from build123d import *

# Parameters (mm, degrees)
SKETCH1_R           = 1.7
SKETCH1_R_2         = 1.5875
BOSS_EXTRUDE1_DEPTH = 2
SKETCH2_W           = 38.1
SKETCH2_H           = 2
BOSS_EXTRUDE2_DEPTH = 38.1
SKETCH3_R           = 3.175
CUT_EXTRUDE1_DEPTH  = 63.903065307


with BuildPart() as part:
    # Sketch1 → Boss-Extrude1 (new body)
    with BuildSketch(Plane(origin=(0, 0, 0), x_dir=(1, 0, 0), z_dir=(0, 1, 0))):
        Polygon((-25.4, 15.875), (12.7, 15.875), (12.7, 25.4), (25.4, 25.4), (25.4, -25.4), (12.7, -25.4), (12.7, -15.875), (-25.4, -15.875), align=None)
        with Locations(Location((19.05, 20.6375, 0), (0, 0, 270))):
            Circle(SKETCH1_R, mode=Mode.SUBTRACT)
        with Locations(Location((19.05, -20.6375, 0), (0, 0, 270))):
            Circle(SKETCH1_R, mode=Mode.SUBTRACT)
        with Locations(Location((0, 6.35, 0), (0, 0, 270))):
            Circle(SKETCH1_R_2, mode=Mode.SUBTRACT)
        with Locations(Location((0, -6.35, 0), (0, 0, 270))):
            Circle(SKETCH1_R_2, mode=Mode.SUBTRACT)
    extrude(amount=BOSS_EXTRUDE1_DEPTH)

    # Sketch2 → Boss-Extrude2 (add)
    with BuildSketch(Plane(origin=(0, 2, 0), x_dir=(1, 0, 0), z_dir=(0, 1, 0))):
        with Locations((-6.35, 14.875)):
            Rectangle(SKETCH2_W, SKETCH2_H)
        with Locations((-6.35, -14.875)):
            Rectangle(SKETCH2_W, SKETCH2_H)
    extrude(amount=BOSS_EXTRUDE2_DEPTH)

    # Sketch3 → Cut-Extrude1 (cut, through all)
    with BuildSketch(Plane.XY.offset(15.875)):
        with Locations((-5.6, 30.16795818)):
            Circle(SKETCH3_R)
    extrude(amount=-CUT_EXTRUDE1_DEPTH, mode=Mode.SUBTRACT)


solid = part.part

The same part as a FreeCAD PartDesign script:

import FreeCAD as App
import Part
import Sketcher
Q = App.Units.Quantity


def add_polygon(sketch, points):
    """Adds a closed chain of lines whose ends are joined by coincident constraints."""
    first, n = sketch.GeometryCount, len(points)
    for a, b in zip(points, points[1:] + points[:1]):
        sketch.addGeometry(Part.LineSegment(App.Vector(*a, 0), App.Vector(*b, 0)), False)
    for i in range(n):
        sketch.addConstraint(Sketcher.Constraint("Coincident", first + i, 2, first + (i + 1) % n, 1))

doc = App.newDocument("Part")
params = doc.addObject("Spreadsheet::Sheet", "Params")
for row, (alias, value) in enumerate([
    ("sketch1_height", "2 in"),
    ("sketch1_diameter", "0.125 in"),
    ("sketch1_width", "1.5 in"),
    ("sketch1_width2", "0.5 in"),
    ("sketch1_height2", "1.25 in"),
    ("pad1_length", "2 mm"),
    ("sketch2_width", "1.5 in"),
    ("pad2_length", "1.5 in"),
    ("sketch3_diameter", "0.25 in"),
], start=1):
    params.set(f"A{row}", alias)
    params.set(f"B{row}", "=" + value)
    params.setAlias(f"B{row}", alias)

body = doc.addObject("PartDesign::Body", "Body")

# Sketch on XZ plane
sketch1 = body.newObject("Sketcher::SketchObject", "Sketch")
sketch1.AttachmentSupport = (doc.getObject("XZ_Plane"), [""])
sketch1.MapMode = "FlatFace"
add_polygon(sketch1, [(12.7, -15.9), (-25.4, -15.9), (-25.4, 15.9), (12.7, 15.9), (12.7, 25.4), (25.4, 25.4), (25.4, -25.4), (12.7, -25.4)])  # lines 0-7
sketch1.addGeometry(Part.Circle(App.Vector(19.1, 20.6, 0), App.Vector(0, 0, 1), 1.7), False)  # 8
sketch1.addGeometry(Part.Circle(App.Vector(0, 6.3, 0), App.Vector(0, 0, 1), 1.6), False)  # 9
sketch1.addGeometry(Part.Circle(App.Vector(19.1, -20.6, 0), App.Vector(0, 0, 1), 1.7), False)  # 10
sketch1.addGeometry(Part.Circle(App.Vector(0, -6.3, 0), App.Vector(0, 0, 1), 1.6), False)  # 11
sketch1.addConstraint(Sketcher.Constraint("Horizontal", 0))
sketch1.addConstraint(Sketcher.Constraint("Vertical", 1))
sketch1.addConstraint(Sketcher.Constraint("Horizontal", 2))
sketch1.addConstraint(Sketcher.Constraint("Vertical", 3))
sketch1.addConstraint(Sketcher.Constraint("Horizontal", 4))
sketch1.addConstraint(Sketcher.Constraint("Vertical", 5))
sketch1.addConstraint(Sketcher.Constraint("Horizontal", 6))
sketch1.addConstraint(Sketcher.Constraint("Vertical", 7))
sketch1.addConstraint(Sketcher.Constraint("Equal", 8, 10))
sketch1.addConstraint(Sketcher.Constraint("Equal", 9, 11))
sketch1.addConstraint(Sketcher.Constraint("Symmetric", 9, 3, 11, 3, -1, 1))
sketch1.addConstraint(Sketcher.Constraint("Symmetric", 8, 3, 10, 3, -1))
sketch1.addConstraint(Sketcher.Constraint("Symmetric", 3, 2, 6, 2, -1))
sketch1.addConstraint(Sketcher.Constraint("PointOnObject", 9, 3, -2))
sketch1.addConstraint(Sketcher.Constraint("Equal", 3, 7))
sketch1.addConstraint(Sketcher.Constraint("DistanceY", 5, 2, 5, 1, Q("2 in")))
sketch1.addConstraint(Sketcher.Constraint("Diameter", 9, Q("0.125 in")))
sketch1.addConstraint(Sketcher.Constraint("DistanceX", 0, 2, 0, 1, Q("1.5 in")))
sketch1.addConstraint(Sketcher.Constraint("DistanceX", 4, 1, 4, 2, Q("0.5 in")))
sketch1.addConstraint(Sketcher.Constraint("DistanceX", 0, 2, -1, 1, Q("1 in")))
sketch1.addConstraint(Sketcher.Constraint("DistanceY", 1, 1, 1, 2, Q("1.25 in")))
sketch1.addConstraint(Sketcher.Constraint("DistanceY", 11, 3, 9, 3, Q("0.5 in")))
sketch1.addConstraint(Sketcher.Constraint("Diameter", 8, 3.4))
sketch1.addConstraint(Sketcher.Constraint("DistanceX", -1, 1, 8, 3, Q("0.75 in")))
sketch1.addConstraint(Sketcher.Constraint("DistanceY", -1, 1, 8, 3, Q("0.8125 in")))
sketch1.setExpression("Constraints[23]", "Params.sketch1_height")
sketch1.setExpression("Constraints[24]", "Params.sketch1_diameter")
sketch1.setExpression("Constraints[25]", "Params.sketch1_width")
sketch1.setExpression("Constraints[26]", "Params.sketch1_width2")
sketch1.setExpression("Constraints[28]", "Params.sketch1_height2")
pad1 = body.newObject("PartDesign::Pad", "Pad")
pad1.Profile = sketch1
pad1.setExpression("Length", "Params.pad1_length")
pad1.Reversed = True

# Sketch on XZ plane
sketch2 = body.newObject("Sketcher::SketchObject", "Sketch001")
sketch2.AttachmentSupport = (doc.getObject("XZ_Plane"), [""])
sketch2.MapMode = "FlatFace"
sketch2.AttachmentOffset = App.Placement(App.Vector(0, 0, -2), App.Rotation())
add_polygon(sketch2, [(-25.4, -15.9), (-25.4, -13.9), (12.7, -13.9), (12.7, -15.9)])  # lines 0-3
add_polygon(sketch2, [(-25.4, 13.9), (-25.4, 15.9), (12.7, 15.9), (12.7, 13.9)])  # lines 4-7
sketch2.addConstraint(Sketcher.Constraint("Vertical", 0))
sketch2.addConstraint(Sketcher.Constraint("Horizontal", 1))
sketch2.addConstraint(Sketcher.Constraint("Vertical", 2))
sketch2.addConstraint(Sketcher.Constraint("Horizontal", 3))
sketch2.addConstraint(Sketcher.Constraint("Vertical", 4))
sketch2.addConstraint(Sketcher.Constraint("Horizontal", 5))
sketch2.addConstraint(Sketcher.Constraint("Vertical", 6))
sketch2.addConstraint(Sketcher.Constraint("Horizontal", 7))
sketch2.addConstraint(Sketcher.Constraint("Symmetric", 3, 2, 4, 2, -1))
sketch2.addConstraint(Sketcher.Constraint("Symmetric", 1, 2, 6, 2, -1))
sketch2.addConstraint(Sketcher.Constraint("DistanceX", 1, 1, 1, 2, Q("1.5 in")))
sketch2.addConstraint(Sketcher.Constraint("DistanceX", 0, 2, -1, 1, Q("1 in")))
sketch2.addConstraint(Sketcher.Constraint("DistanceY", 3, 2, 4, 2, Q("1.25 in")))
sketch2.addConstraint(Sketcher.Constraint("DistanceY", 0, 1, 0, 2, 2.0))
sketch2.setExpression("Constraints[18]", "Params.sketch2_width")
pad2 = body.newObject("PartDesign::Pad", "Pad001")
pad2.Profile = sketch2
pad2.setExpression("Length", "Params.pad2_length")
pad2.Reversed = True

# Sketch on XY plane
sketch3 = body.newObject("Sketcher::SketchObject", "Sketch002")
sketch3.AttachmentSupport = (doc.getObject("XY_Plane"), [""])
sketch3.MapMode = "FlatFace"
sketch3.AttachmentOffset = App.Placement(App.Vector(0, 0, 0.625 * 25.4), App.Rotation())
sketch3.addGeometry(Part.Circle(App.Vector(-5.6, 30.2, 0), App.Vector(0, 0, 1), 3.2), False)
sketch3.addConstraint(Sketcher.Constraint("Diameter", 0, Q("0.25 in")))
sketch3.addConstraint(Sketcher.Constraint("DistanceX", 0, 3, -1, 1, 5.6))
sketch3.addConstraint(Sketcher.Constraint("DistanceY", -1, 1, 0, 3, 30.167958))
sketch3.setExpression("Constraints[0]", "Params.sketch3_diameter")
pocket1 = body.newObject("PartDesign::Pocket", "Pocket")
pocket1.Profile = sketch3
pocket1.Type = "ThroughAll"

doc.recompute()
